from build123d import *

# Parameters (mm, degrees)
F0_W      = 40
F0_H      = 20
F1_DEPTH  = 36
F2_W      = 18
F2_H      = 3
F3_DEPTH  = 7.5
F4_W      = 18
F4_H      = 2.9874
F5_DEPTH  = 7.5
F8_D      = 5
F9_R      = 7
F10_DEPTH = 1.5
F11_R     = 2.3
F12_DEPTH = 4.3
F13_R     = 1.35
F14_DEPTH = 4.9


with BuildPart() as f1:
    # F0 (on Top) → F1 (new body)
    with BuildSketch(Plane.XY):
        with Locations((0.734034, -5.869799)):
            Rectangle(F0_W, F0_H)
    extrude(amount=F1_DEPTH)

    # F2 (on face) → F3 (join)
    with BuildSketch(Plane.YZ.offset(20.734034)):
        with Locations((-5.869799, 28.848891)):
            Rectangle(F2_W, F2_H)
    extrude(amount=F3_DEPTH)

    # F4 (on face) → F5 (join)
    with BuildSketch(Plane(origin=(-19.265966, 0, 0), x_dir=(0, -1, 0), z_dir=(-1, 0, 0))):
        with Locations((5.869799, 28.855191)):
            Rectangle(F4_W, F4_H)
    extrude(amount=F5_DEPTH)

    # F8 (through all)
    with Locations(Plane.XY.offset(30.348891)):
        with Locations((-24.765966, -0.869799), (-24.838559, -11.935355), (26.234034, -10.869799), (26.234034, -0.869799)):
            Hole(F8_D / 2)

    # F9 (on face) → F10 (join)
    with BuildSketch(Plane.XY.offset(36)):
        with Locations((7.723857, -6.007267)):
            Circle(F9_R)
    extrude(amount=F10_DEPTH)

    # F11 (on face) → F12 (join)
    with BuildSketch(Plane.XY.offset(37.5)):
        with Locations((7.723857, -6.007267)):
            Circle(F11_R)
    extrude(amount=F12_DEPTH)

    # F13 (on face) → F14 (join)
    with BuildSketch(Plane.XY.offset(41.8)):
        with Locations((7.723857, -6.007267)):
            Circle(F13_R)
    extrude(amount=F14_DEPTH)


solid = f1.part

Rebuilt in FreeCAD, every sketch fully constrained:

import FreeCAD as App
import Part
import Sketcher
from FreeCAD import Vector
Q = App.Units.Quantity

doc = App.newDocument("Part")
body = doc.addObject("PartDesign::Body", "Body")

sketch1 = doc.addObject("Sketcher::SketchObject", "Sketch")
body.addObject(sketch1)
sketch1.AttachmentSupport = (doc.XY_Plane, [""])
sketch1.MapMode = "FlatFace"
sketch1.addGeometry([
    Part.LineSegment(Vector(-19.265966, 4.130201, 0), Vector(-19.265966, -15.869799, 0)),
    Part.LineSegment(Vector(-19.265966, -15.869799, 0), Vector(20.734034, -15.869799, 0)),
    Part.LineSegment(Vector(20.734034, -15.869799, 0), Vector(20.734034, 4.130201, 0)),
    Part.LineSegment(Vector(20.734034, 4.130201, 0), Vector(-19.265966, 4.130201, 0)),
], False)
sketch1.addConstraint([
    Sketcher.Constraint("Coincident", 0, 2, 1, 1),
    Sketcher.Constraint("Coincident", 1, 2, 2, 1),
    Sketcher.Constraint("Coincident", 2, 2, 3, 1),
    Sketcher.Constraint("Coincident", 3, 2, 0, 1),
    Sketcher.Constraint("Vertical", 0),
    Sketcher.Constraint("Horizontal", 1),
    Sketcher.Constraint("Vertical", 2),
    Sketcher.Constraint("Horizontal", 3),
    Sketcher.Constraint("DistanceX", 1, 1, 1, 2, Q("40 mm")),
    Sketcher.Constraint("DistanceY", 0, 2, 0, 1, Q("20 mm")),
    Sketcher.Constraint("DistanceY", 0, 2, -1, 1, Q("15.869799 mm")),
    Sketcher.Constraint("DistanceX", 0, 2, -1, 1, Q("19.265966 mm")),
])
pad1 = doc.addObject("PartDesign::Pad", "Pad")
body.addObject(pad1)
pad1.Profile = sketch1
pad1.Length = 36

sketch2 = doc.addObject("Sketcher::SketchObject", "Sketch001")
body.addObject(sketch2)
sketch2.AttachmentSupport = (doc.YZ_Plane, [""])
sketch2.MapMode = "FlatFace"
sketch2.AttachmentOffset = App.Placement(Vector(0, 0, 20.734034), App.Rotation())
sketch2.addGeometry([
    Part.LineSegment(Vector(-14.869799, 30.348891, 0), Vector(-14.869799, 27.348891, 0)),
    Part.LineSegment(Vector(-14.869799, 27.348891, 0), Vector(3.130201, 27.348891, 0)),
    Part.LineSegment(Vector(3.130201, 27.348891, 0), Vector(3.130201, 30.348891, 0)),
    Part.LineSegment(Vector(3.130201, 30.348891, 0), Vector(-14.869799, 30.348891, 0)),
], False)
sketch2.addConstraint([
    Sketcher.Constraint("Coincident", 0, 2, 1, 1),
    Sketcher.Constraint("Coincident", 1, 2, 2, 1),
    Sketcher.Constraint("Coincident", 2, 2, 3, 1),
    Sketcher.Constraint("Coincident", 3, 2, 0, 1),
    Sketcher.Constraint("Vertical", 0),
    Sketcher.Constraint("Horizontal", 1),
    Sketcher.Constraint("Vertical", 2),
    Sketcher.Constraint("Horizontal", 3),
    Sketcher.Constraint("DistanceX", 1, 1, 1, 2, Q("18 mm")),
    Sketcher.Constraint("DistanceY", 0, 2, 0, 1, Q("3 mm")),
    Sketcher.Constraint("DistanceX", 0, 2, -1, 1, Q("14.869799 mm")),
    Sketcher.Constraint("DistanceY", -1, 1, 0, 2, Q("27.348891 mm")),
])
pad2 = doc.addObject("PartDesign::Pad", "Pad001")
body.addObject(pad2)
pad2.Profile = sketch2
pad2.Length = 7.5

sketch3 = doc.addObject("Sketcher::SketchObject", "Sketch002")
body.addObject(sketch3)
sketch3.AttachmentSupport = (doc.YZ_Plane, [""])
sketch3.MapMode = "FlatFace"
sketch3.AttachmentOffset = App.Placement(Vector(0, 0, -19.265966), App.Rotation())
sketch3.addGeometry([
    Part.LineSegment(Vector(3.130201, 30.348891, 0), Vector(3.130201, 27.361491, 0)),
    Part.LineSegment(Vector(3.130201, 27.361491, 0), Vector(-14.869799, 27.361491, 0)),
    Part.LineSegment(Vector(-14.869799, 27.361491, 0), Vector(-14.869799, 30.348891, 0)),
    Part.LineSegment(Vector(-14.869799, 30.348891, 0), Vector(3.130201, 30.348891, 0)),
], False)
sketch3.addConstraint([
    Sketcher.Constraint("Coincident", 0, 2, 1, 1),
    Sketcher.Constraint("Coincident", 1, 2, 2, 1),
    Sketcher.Constraint("Coincident", 2, 2, 3, 1),
    Sketcher.Constraint("Coincident", 3, 2, 0, 1),
    Sketcher.Constraint("Vertical", 0),
    Sketcher.Constraint("Horizontal", 1),
    Sketcher.Constraint("Vertical", 2),
    Sketcher.Constraint("Horizontal", 3),
    Sketcher.Constraint("DistanceX", 1, 2, 1, 1, Q("18 mm")),
    Sketcher.Constraint("DistanceY", 0, 2, 0, 1, Q("2.9874 mm")),
    Sketcher.Constraint("DistanceX", -1, 1, 0, 2, Q("3.130201 mm")),
    Sketcher.Constraint("DistanceY", -1, 1, 0, 2, Q("27.361491 mm")),
])
pad3 = doc.addObject("PartDesign::Pad", "Pad002")
body.addObject(pad3)
pad3.Profile = sketch3
pad3.Length = 7.5
pad3.Reversed = True

sketch4 = doc.addObject("Sketcher::SketchObject", "Sketch003")
body.addObject(sketch4)
sketch4.AttachmentSupport = (doc.XY_Plane, [""])
sketch4.MapMode = "FlatFace"
sketch4.AttachmentOffset = App.Placement(Vector(0, 0, 30.348891), App.Rotation())
sketch4.addGeometry([
    Part.Circle(Vector(-24.765966, -0.869799, 0), Vector(0, 0, 1), 2.5),
    Part.Circle(Vector(-24.838559, -11.935355, 0), Vector(0, 0, 1), 2.5),
    Part.Circle(Vector(26.234034, -10.869799, 0), Vector(0, 0, 1), 2.5),
    Part.Circle(Vector(26.234034, -0.869799, 0), Vector(0, 0, 1), 2.5),
], False)
sketch4.addConstraint([
    Sketcher.Constraint("Equal", 0, 1),
    Sketcher.Constraint("Equal", 1, 2),
    Sketcher.Constraint("Equal", 2, 3),
    Sketcher.Constraint("Horizontal", 0, 3, 3, 3),
    Sketcher.Constraint("Vertical", 2, 3, 3, 3),
    Sketcher.Constraint("Diameter", 0, Q("5 mm")),
    Sketcher.Constraint("DistanceX", 0, 3, 2, 3, Q("51 mm")),
    Sketcher.Constraint("DistanceY", 2, 3, 0, 3, Q("10 mm")),
    Sketcher.Constraint("DistanceY", 0, 3, -1, 1, Q("0.869799 mm")),
    Sketcher.Constraint("DistanceX", 1, 3, -1, 1, Q("24.838559 mm")),
    Sketcher.Constraint("DistanceX", 0, 3, -1, 1, Q("24.765966 mm")),
    Sketcher.Constraint("DistanceY", 1, 3, -1, 1, Q("11.935355 mm")),
])
doc.recompute()
hole = doc.addObject("PartDesign::Hole", "Hole")
body.addObject(hole)
hole.Profile = sketch4
hole.ThreadType = "None"
hole.Diameter = 5
hole.DepthType = "ThroughAll"

sketch5 = doc.addObject("Sketcher::SketchObject", "Sketch004")
body.addObject(sketch5)
sketch5.AttachmentSupport = (doc.XY_Plane, [""])
sketch5.MapMode = "FlatFace"
sketch5.AttachmentOffset = App.Placement(Vector(0, 0, 36), App.Rotation())
sketch5.addGeometry(Part.Circle(Vector(7.723857, -6.007267, 0), Vector(0, 0, 1), 7), False)
sketch5.addConstraint([
    Sketcher.Constraint("Diameter", 0, Q("14 mm")),
    Sketcher.Constraint("DistanceX", -1, 1, 0, 3, Q("7.723857 mm")),
    Sketcher.Constraint("DistanceY", 0, 3, -1, 1, Q("6.007267 mm")),
])
pad4 = doc.addObject("PartDesign::Pad", "Pad003")
body.addObject(pad4)
pad4.Profile = sketch5
pad4.Length = 1.5

sketch6 = doc.addObject("Sketcher::SketchObject", "Sketch005")
body.addObject(sketch6)
sketch6.AttachmentSupport = (doc.XY_Plane, [""])
sketch6.MapMode = "FlatFace"
sketch6.AttachmentOffset = App.Placement(Vector(0, 0, 37.5), App.Rotation())
sketch6.addGeometry(Part.Circle(Vector(7.723857, -6.007267, 0), Vector(0, 0, 1), 2.3), False)
sketch6.addConstraint([
    Sketcher.Constraint("Diameter", 0, Q("4.6 mm")),
    Sketcher.Constraint("DistanceX", -1, 1, 0, 3, Q("7.723857 mm")),
    Sketcher.Constraint("DistanceY", 0, 3, -1, 1, Q("6.007267 mm")),
])
pad5 = doc.addObject("PartDesign::Pad", "Pad004")
body.addObject(pad5)
pad5.Profile = sketch6
pad5.Length = 4.3

sketch7 = doc.addObject("Sketcher::SketchObject", "Sketch006")
body.addObject(sketch7)
sketch7.AttachmentSupport = (doc.XY_Plane, [""])
sketch7.MapMode = "FlatFace"
sketch7.AttachmentOffset = App.Placement(Vector(0, 0, 41.8), App.Rotation())
sketch7.addGeometry(Part.Circle(Vector(7.723857, -6.007267, 0), Vector(0, 0, 1), 1.35), False)
sketch7.addConstraint([
    Sketcher.Constraint("Diameter", 0, Q("2.7 mm")),
    Sketcher.Constraint("DistanceX", -1, 1, 0, 3, Q("7.723857 mm")),
    Sketcher.Constraint("DistanceY", 0, 3, -1, 1, Q("6.007267 mm")),
])
pad6 = doc.addObject("PartDesign::Pad", "Pad005")
body.addObject(pad6)
pad6.Profile = sketch7
pad6.Length = 4.9

doc.recompute()
